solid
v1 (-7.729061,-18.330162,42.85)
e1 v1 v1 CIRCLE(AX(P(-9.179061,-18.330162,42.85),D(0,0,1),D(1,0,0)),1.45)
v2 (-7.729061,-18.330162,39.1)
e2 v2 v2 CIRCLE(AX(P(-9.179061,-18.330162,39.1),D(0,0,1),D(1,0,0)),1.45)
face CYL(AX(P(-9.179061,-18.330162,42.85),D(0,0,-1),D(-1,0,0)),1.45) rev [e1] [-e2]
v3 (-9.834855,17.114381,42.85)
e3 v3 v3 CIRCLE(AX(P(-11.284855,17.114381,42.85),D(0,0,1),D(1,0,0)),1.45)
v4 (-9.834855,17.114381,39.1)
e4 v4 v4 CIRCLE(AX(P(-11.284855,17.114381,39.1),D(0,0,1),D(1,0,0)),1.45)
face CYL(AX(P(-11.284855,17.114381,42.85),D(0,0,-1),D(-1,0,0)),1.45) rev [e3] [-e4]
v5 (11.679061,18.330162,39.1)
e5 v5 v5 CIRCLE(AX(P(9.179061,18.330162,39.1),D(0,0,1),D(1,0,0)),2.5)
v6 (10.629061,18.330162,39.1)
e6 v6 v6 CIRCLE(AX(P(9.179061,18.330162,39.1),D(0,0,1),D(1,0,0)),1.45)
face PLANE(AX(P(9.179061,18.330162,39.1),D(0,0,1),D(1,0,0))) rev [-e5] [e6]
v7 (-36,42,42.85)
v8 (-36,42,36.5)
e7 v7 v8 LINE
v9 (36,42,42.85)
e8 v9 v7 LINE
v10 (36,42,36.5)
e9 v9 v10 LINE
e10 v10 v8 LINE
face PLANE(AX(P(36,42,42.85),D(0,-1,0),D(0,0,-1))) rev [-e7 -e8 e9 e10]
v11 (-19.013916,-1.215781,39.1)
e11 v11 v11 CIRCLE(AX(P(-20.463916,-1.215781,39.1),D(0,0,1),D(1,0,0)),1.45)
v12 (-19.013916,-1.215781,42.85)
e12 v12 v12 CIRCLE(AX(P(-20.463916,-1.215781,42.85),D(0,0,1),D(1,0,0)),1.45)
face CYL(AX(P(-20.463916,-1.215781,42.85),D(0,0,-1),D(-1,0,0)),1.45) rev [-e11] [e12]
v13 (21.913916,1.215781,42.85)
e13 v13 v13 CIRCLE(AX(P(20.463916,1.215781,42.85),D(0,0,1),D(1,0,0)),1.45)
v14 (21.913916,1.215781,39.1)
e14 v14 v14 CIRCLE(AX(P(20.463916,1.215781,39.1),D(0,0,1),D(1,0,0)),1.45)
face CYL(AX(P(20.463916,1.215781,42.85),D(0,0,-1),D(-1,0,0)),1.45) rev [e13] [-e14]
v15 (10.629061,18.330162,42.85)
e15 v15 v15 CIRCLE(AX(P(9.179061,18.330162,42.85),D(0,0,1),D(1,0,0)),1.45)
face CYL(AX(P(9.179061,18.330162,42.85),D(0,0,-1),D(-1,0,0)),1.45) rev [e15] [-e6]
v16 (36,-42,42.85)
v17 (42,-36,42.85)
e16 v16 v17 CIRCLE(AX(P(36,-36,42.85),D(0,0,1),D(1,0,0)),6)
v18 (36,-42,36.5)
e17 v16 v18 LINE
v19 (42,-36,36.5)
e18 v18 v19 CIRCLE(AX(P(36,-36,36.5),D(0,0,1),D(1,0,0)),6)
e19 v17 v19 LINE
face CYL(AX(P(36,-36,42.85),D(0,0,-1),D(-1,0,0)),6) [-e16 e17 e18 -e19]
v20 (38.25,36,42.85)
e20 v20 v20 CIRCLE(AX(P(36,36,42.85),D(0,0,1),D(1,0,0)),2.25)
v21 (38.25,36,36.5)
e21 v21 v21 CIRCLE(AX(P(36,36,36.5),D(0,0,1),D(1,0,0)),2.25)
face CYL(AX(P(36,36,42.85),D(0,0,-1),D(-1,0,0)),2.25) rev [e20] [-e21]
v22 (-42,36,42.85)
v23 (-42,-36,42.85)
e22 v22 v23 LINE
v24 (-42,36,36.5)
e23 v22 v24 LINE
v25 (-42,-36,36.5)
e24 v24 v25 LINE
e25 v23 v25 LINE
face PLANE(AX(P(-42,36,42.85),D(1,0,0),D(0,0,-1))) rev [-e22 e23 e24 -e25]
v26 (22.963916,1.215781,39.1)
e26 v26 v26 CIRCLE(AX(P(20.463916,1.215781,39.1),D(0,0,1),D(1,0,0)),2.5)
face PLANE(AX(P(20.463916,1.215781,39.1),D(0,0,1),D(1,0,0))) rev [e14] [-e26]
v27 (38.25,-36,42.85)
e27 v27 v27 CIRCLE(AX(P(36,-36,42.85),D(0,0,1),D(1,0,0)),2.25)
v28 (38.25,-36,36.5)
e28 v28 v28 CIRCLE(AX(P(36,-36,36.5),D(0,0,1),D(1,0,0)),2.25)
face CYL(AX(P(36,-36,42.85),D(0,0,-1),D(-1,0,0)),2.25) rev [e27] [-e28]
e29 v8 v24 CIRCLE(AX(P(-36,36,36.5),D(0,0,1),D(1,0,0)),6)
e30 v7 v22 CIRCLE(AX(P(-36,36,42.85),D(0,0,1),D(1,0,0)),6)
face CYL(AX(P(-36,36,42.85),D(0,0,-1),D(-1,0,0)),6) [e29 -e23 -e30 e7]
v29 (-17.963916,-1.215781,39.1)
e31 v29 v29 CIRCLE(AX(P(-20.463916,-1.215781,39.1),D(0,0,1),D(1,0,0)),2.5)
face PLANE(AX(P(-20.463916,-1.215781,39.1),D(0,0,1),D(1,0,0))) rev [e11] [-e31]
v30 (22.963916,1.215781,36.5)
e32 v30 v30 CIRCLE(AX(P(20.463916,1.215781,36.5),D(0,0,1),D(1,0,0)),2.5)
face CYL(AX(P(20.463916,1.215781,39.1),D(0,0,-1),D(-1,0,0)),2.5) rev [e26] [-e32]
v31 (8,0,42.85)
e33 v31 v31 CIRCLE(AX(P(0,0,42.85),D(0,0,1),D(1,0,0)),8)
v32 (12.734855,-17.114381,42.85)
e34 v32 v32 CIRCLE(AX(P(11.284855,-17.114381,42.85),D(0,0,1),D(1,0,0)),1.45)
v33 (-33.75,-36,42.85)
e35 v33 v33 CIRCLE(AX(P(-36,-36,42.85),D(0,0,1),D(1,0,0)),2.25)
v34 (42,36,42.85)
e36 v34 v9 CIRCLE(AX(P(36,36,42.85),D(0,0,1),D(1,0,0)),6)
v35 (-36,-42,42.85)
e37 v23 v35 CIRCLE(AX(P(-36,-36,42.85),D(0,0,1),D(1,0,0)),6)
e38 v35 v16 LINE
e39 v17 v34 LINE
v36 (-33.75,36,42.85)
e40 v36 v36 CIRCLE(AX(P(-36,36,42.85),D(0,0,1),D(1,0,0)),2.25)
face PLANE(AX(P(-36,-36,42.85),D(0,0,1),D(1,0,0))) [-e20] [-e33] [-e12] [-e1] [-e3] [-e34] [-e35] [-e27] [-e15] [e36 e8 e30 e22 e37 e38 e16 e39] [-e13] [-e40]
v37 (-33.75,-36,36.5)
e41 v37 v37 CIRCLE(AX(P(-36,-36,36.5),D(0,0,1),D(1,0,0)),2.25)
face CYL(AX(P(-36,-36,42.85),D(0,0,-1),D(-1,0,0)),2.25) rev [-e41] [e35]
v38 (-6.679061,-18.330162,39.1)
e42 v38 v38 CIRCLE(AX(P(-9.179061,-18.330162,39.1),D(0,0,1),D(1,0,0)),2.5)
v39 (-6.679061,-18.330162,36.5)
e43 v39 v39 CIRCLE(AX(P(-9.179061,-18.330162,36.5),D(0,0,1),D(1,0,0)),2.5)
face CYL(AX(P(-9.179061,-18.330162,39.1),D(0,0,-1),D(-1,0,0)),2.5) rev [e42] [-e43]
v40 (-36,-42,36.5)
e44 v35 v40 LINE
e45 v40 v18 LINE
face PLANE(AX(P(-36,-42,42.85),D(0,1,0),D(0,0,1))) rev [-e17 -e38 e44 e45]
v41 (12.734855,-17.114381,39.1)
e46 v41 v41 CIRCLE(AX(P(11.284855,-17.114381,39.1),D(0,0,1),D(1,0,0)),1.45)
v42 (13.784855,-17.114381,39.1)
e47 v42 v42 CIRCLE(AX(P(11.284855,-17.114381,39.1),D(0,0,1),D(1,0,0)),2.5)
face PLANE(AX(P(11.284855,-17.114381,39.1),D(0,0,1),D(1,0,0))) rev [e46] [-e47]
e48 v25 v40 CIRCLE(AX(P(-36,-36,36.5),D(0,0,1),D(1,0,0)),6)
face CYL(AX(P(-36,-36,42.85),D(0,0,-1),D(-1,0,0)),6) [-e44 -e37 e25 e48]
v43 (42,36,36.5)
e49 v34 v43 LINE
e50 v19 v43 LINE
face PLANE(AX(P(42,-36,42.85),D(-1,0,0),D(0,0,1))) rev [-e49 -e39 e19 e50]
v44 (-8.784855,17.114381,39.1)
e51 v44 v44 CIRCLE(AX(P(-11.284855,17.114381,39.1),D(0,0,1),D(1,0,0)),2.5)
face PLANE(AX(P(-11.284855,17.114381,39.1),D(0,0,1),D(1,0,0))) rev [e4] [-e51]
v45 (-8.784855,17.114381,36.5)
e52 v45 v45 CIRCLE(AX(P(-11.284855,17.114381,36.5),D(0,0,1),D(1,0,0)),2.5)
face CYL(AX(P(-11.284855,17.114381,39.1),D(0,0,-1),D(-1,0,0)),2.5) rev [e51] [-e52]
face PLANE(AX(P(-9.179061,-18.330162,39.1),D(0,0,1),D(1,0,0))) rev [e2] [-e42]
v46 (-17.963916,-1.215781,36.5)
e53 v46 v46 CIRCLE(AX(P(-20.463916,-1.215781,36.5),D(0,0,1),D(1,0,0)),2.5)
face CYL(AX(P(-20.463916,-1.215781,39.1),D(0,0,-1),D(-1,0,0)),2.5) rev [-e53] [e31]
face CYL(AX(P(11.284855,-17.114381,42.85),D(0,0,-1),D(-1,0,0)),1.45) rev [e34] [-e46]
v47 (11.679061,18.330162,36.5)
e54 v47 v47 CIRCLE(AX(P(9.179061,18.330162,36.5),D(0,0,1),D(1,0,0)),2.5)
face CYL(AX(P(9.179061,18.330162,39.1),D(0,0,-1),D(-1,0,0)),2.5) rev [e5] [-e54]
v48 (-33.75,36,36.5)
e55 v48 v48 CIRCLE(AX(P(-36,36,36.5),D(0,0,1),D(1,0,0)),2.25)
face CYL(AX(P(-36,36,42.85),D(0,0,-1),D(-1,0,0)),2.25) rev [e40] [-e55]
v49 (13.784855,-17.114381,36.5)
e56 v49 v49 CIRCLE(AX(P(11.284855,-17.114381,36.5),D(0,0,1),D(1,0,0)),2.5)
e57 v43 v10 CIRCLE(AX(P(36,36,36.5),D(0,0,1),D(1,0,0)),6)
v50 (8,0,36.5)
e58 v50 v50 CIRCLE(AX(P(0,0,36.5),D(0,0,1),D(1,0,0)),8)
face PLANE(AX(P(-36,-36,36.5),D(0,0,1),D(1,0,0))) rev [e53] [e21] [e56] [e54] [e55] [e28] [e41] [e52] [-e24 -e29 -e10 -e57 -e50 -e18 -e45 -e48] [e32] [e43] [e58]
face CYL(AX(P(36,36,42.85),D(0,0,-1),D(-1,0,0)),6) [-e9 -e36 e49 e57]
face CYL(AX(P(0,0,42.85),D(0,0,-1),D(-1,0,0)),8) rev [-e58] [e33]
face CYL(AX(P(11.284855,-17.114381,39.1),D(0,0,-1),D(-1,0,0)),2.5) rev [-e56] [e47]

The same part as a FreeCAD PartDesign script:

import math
import FreeCAD as App
import Part
import Sketcher

V = App.Vector
Q = App.Units.Quantity

doc = App.newDocument("Part")
body = doc.addObject("PartDesign::Body", "Body")

sketch1 = doc.addObject("Sketcher::SketchObject", "Sketch")
body.addObject(sketch1)
sketch1.AttachmentSupport = (doc.XY_Plane, [""])
sketch1.MapMode = "FlatFace"
sketch1.AttachmentOffset = App.Placement(V(0, 0, 36.5), App.Rotation())
sketch1.addGeometry(Part.LineSegment(V(-36, -42, 0), V(36, -42, 0)), False)
sketch1.addGeometry(Part.ArcOfCircle(Part.Circle(V(36, -36, 0), V(0, 0, 1), 6), math.radians(-90), math.radians(0)), False)
sketch1.addGeometry(Part.LineSegment(V(42, -36, 0), V(42, 36, 0)), False)
sketch1.addGeometry(Part.ArcOfCircle(Part.Circle(V(36, 36, 0), V(0, 0, 1), 6), math.radians(0), math.radians(90)), False)
sketch1.addGeometry(Part.LineSegment(V(36, 42, 0), V(-36, 42, 0)), False)
sketch1.addGeometry(Part.ArcOfCircle(Part.Circle(V(-36, 36, 0), V(0, 0, 1), 6), math.radians(90), math.radians(180)), False)
sketch1.addGeometry(Part.LineSegment(V(-42, 36, 0), V(-42, -36, 0)), False)
sketch1.addGeometry(Part.ArcOfCircle(Part.Circle(V(-36, -36, 0), V(0, 0, 1), 6), math.radians(180), math.radians(270)), False)
sketch1.addConstraint(Sketcher.Constraint("Tangent", 0, 2, 1, 1))
sketch1.addConstraint(Sketcher.Constraint("Tangent", 1, 2, 2, 1))
sketch1.addConstraint(Sketcher.Constraint("Tangent", 2, 2, 3, 1))
sketch1.addConstraint(Sketcher.Constraint("Tangent", 3, 2, 4, 1))
sketch1.addConstraint(Sketcher.Constraint("Tangent", 4, 2, 5, 1))
sketch1.addConstraint(Sketcher.Constraint("Tangent", 5, 2, 6, 1))
sketch1.addConstraint(Sketcher.Constraint("Tangent", 6, 2, 7, 1))
sketch1.addConstraint(Sketcher.Constraint("Tangent", 7, 2, 0, 1))
sketch1.addConstraint(Sketcher.Constraint("Horizontal", 0))
sketch1.addConstraint(Sketcher.Constraint("Vertical", 2))
sketch1.addConstraint(Sketcher.Constraint("Horizontal", 4))
sketch1.addConstraint(Sketcher.Constraint("Vertical", 6))
sketch1.addConstraint(Sketcher.Constraint("Equal", 1, 3))
sketch1.addConstraint(Sketcher.Constraint("Equal", 3, 5))
sketch1.addConstraint(Sketcher.Constraint("Equal", 5, 7))
sketch1.addConstraint(Sketcher.Constraint("Symmetric", 1, 3, 5, 3, -1, 1))
sketch1.addConstraint(Sketcher.Constraint("Equal", 4, 2))
sketch1.addConstraint(Sketcher.Constraint("Radius", 1, Q("6 mm")))
sketch1.addConstraint(Sketcher.Constraint("DistanceX", 0, 1, 0, 2, Q("72 mm")))
pad1 = doc.addObject("PartDesign::Pad", "Pad")
body.addObject(pad1)
pad1.Profile = sketch1
pad1.Length = 6.35

sketch2 = doc.addObject("Sketcher::SketchObject", "Sketch001")
body.addObject(sketch2)
sketch2.AttachmentSupport = (doc.XY_Plane, [""])
sketch2.MapMode = "FlatFace"
sketch2.AttachmentOffset = App.Placement(V(0, 0, 36.5), App.Rotation())
sketch2.addGeometry(Part.Circle(V(-36, -36, 0), V(0, 0, 1), 2.2), False)
sketch2.addGeometry(Part.Circle(V(-36, 36, 0), V(0, 0, 1), 2.2), False)
sketch2.addGeometry(Part.Circle(V(36, -36, 0), V(0, 0, 1), 2.2), False)
sketch2.addGeometry(Part.Circle(V(36, 36, 0), V(0, 0, 1), 2.2), False)
sketch2.addGeometry(Part.Circle(V(20.5, 1.2, 0), V(0, 0, 1), 1.4), False)
sketch2.addGeometry(Part.Circle(V(9.2, 18.3, 0), V(0, 0, 1), 1.4), False)
sketch2.addGeometry(Part.Circle(V(-11.3, 17.1, 0), V(0, 0, 1), 1.4), False)
sketch2.addGeometry(Part.Circle(V(-20.5, -1.2, 0), V(0, 0, 1), 1.4), False)
sketch2.addGeometry(Part.Circle(V(-9.2, -18.3, 0), V(0, 0, 1), 1.4), False)
sketch2.addGeometry(Part.Circle(V(11.3, -17.1, 0), V(0, 0, 1), 1.4), False)
sketch2.addGeometry(Part.Circle(V(0, 0, 0), V(0, 0, 1), 8), False)
sketch2.addConstraint(Sketcher.Constraint("Coincident", 10, 3, -1, 1))
sketch2.addConstraint(Sketcher.Constraint("Equal", 0, 1))
sketch2.addConstraint(Sketcher.Constraint("Equal", 1, 2))
sketch2.addConstraint(Sketcher.Constraint("Equal", 2, 3))
sketch2.addConstraint(Sketcher.Constraint("Equal", 4, 5))
sketch2.addConstraint(Sketcher.Constraint("Equal", 5, 6))
sketch2.addConstraint(Sketcher.Constraint("Equal", 6, 7))
sketch2.addConstraint(Sketcher.Constraint("Equal", 7, 8))
sketch2.addConstraint(Sketcher.Constraint("Equal", 8, 9))
sketch2.addConstraint(Sketcher.Constraint("Symmetric", 1, 3, 2, 3, -1, 1))
sketch2.addConstraint(Sketcher.Constraint("Symmetric", 0, 3, 3, 3, -1, 1))
sketch2.addConstraint(Sketcher.Constraint("Symmetric", 4, 3, 7, 3, -1, 1))
sketch2.addConstraint(Sketcher.Constraint("Symmetric", 5, 3, 8, 3, -1, 1))
sketch2.addConstraint(Sketcher.Constraint("Symmetric", 6, 3, 9, 3, -1, 1))
sketch2.addConstraint(Sketcher.Constraint("Symmetric", 0, 3, 2, 3, -2))
sketch2.addConstraint(Sketcher.Constraint("Diameter", 10, Q("16 mm")))
sketch2.addConstraint(Sketcher.Constraint("Diameter", 0, Q("4.5 mm")))
sketch2.addConstraint(Sketcher.Constraint("Diameter", 4, Q("2.9 mm")))
sketch2.addConstraint(Sketcher.Constraint("DistanceX", 0, 3, -1, 1, Q("36 mm")))
sketch2.addConstraint(Sketcher.Constraint("DistanceY", 0, 3, -1, 1, Q("36 mm")))
sketch2.addConstraint(Sketcher.Constraint("DistanceY", 4, 3, 6, 3, Q("15.898601 mm")))
sketch2.addConstraint(Sketcher.Constraint("DistanceY", -1, 1, 4, 3, Q("1.215781 mm")))
sketch2.addConstraint(Sketcher.Constraint("DistanceX", -1, 1, 5, 3, Q("9.179061 mm")))
sketch2.addConstraint(Sketcher.Constraint("DistanceY", -1, 1, 5, 3, Q("18.330162 mm")))
sketch2.addConstraint(Sketcher.Constraint("DistanceX", 6, 3, 4, 3, Q("31.748772 mm")))
sketch2.addConstraint(Sketcher.Constraint("DistanceX", 7, 3, 6, 3, Q("9.179061 mm")))
pocket1 = doc.addObject("PartDesign::Pocket", "Pocket")
body.addObject(pocket1)
pocket1.Profile = sketch2
pocket1.Length = 6.35
pocket1.Reversed = True

sketch3 = doc.addObject("Sketcher::SketchObject", "Sketch002")
body.addObject(sketch3)
sketch3.AttachmentSupport = (doc.XY_Plane, [""])
sketch3.MapMode = "FlatFace"
sketch3.AttachmentOffset = App.Placement(V(0, 0, 36.5), App.Rotation())
sketch3.addGeometry(Part.Circle(V(20.5, 1.2, 0), V(0, 0, 1), 2.5), False)
sketch3.addGeometry(Part.Circle(V(9.2, 18.3, 0), V(0, 0, 1), 2.5), False)
sketch3.addGeometry(Part.Circle(V(-11.3, 17.1, 0), V(0, 0, 1), 2.5), False)
sketch3.addGeometry(Part.Circle(V(-20.5, -1.2, 0), V(0, 0, 1), 2.5), False)
sketch3.addGeometry(Part.Circle(V(-9.2, -18.3, 0), V(0, 0, 1), 2.5), False)
sketch3.addGeometry(Part.Circle(V(11.3, -17.1, 0), V(0, 0, 1), 2.5), False)
sketch3.addConstraint(Sketcher.Constraint("Equal", 0, 1))
sketch3.addConstraint(Sketcher.Constraint("Equal", 1, 2))
sketch3.addConstraint(Sketcher.Constraint("Equal", 2, 3))
sketch3.addConstraint(Sketcher.Constraint("Equal", 3, 4))
sketch3.addConstraint(Sketcher.Constraint("Equal", 4, 5))
sketch3.addConstraint(Sketcher.Constraint("Symmetric", 0, 3, 3, 3, -1, 1))
sketch3.addConstraint(Sketcher.Constraint("Symmetric", 1, 3, 4, 3, -1, 1))
sketch3.addConstraint(Sketcher.Constraint("Symmetric", 2, 3, 5, 3, -1, 1))
sketch3.addConstraint(Sketcher.Constraint("Diameter", 0, Q("5 mm")))
sketch3.addConstraint(Sketcher.Constraint("DistanceY", 0, 3, 2, 3, Q("15.898601 mm")))
sketch3.addConstraint(Sketcher.Constraint("DistanceY", -1, 1, 0, 3, Q("1.215781 mm")))
sketch3.addConstraint(Sketcher.Constraint("DistanceX", -1, 1, 1, 3, Q("9.179061 mm")))
sketch3.addConstraint(Sketcher.Constraint("DistanceY", -1, 1, 1, 3, Q("18.330162 mm")))
sketch3.addConstraint(Sketcher.Constraint("DistanceX", 2, 3, 0, 3, Q("31.748772 mm")))
sketch3.addConstraint(Sketcher.Constraint("DistanceX", 3, 3, 2, 3, Q("9.179061 mm")))
pocket2 = doc.addObject("PartDesign::Pocket", "Pocket001")
body.addObject(pocket2)
pocket2.Profile = sketch3
pocket2.Length = 2.6
pocket2.Reversed = True

doc.recompute()
